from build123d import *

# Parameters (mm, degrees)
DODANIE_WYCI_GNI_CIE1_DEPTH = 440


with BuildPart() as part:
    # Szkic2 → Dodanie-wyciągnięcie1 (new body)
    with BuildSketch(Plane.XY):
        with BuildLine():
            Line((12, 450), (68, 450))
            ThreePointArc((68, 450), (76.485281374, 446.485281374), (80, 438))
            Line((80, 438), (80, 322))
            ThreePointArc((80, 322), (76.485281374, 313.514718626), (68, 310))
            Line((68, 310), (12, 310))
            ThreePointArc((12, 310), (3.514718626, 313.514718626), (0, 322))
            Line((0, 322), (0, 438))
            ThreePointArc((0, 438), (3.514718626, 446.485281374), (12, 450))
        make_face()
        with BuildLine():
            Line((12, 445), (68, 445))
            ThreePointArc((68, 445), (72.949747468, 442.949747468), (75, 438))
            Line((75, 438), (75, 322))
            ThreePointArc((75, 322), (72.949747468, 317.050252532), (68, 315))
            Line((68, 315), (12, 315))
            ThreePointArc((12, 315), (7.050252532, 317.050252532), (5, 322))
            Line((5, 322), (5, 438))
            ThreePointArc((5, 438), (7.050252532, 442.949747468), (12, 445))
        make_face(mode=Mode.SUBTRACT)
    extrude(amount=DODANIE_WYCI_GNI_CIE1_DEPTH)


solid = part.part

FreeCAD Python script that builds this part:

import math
import FreeCAD as App
import Part
import Sketcher
Q = App.Units.Quantity

doc = App.newDocument("Part")
body = doc.addObject("PartDesign::Body", "Body")

# Sketch on XY plane
sketch1 = doc.addObject("Sketcher::SketchObject", "Sketch")
body.addObject(sketch1)
sketch1.AttachmentSupport = (doc.XY_Plane, [""])
sketch1.MapMode = "FlatFace"
sketch1.addGeometry(Part.LineSegment(App.Vector(68, 450, 0), App.Vector(12, 450, 0)), False)
sketch1.addGeometry(Part.ArcOfCircle(Part.Circle(App.Vector(12, 438, 0), App.Vector(0, 0, 1), 12), math.radians(90), math.radians(180)), False)
sketch1.addGeometry(Part.LineSegment(App.Vector(0, 438, 0), App.Vector(0, 322, 0)), False)
sketch1.addGeometry(Part.ArcOfCircle(Part.Circle(App.Vector(12, 322, 0), App.Vector(0, 0, 1), 12), math.radians(-180), math.radians(-90)), False)
sketch1.addGeometry(Part.LineSegment(App.Vector(12, 310, 0), App.Vector(68, 310, 0)), False)
sketch1.addGeometry(Part.ArcOfCircle(Part.Circle(App.Vector(68, 322, 0), App.Vector(0, 0, 1), 12), math.radians(-90), math.radians(0)), False)
sketch1.addGeometry(Part.LineSegment(App.Vector(80, 322, 0), App.Vector(80, 438, 0)), False)
sketch1.addGeometry(Part.ArcOfCircle(Part.Circle(App.Vector(68, 438, 0), App.Vector(0, 0, 1), 12), math.radians(0), math.radians(90)), False)
sketch1.addGeometry(Part.LineSegment(App.Vector(12, 445, 0), App.Vector(68, 445, 0)), False)
sketch1.addGeometry(Part.ArcOfCircle(Part.Circle(App.Vector(68, 438, 0), App.Vector(0, 0, 1), 7), math.radians(0), math.radians(90)), False)
sketch1.addGeometry(Part.LineSegment(App.Vector(75, 438, 0), App.Vector(75, 322, 0)), False)
sketch1.addGeometry(Part.ArcOfCircle(Part.Circle(App.Vector(68, 322, 0), App.Vector(0, 0, 1), 7), math.radians(-90), math.radians(0)), False)
sketch1.addGeometry(Part.LineSegment(App.Vector(68, 315, 0), App.Vector(12, 315, 0)), False)
sketch1.addGeometry(Part.ArcOfCircle(Part.Circle(App.Vector(12, 322, 0), App.Vector(0, 0, 1), 7), math.radians(-180), math.radians(-90)), False)
sketch1.addGeometry(Part.LineSegment(App.Vector(5, 322, 0), App.Vector(5, 438, 0)), False)
sketch1.addGeometry(Part.ArcOfCircle(Part.Circle(App.Vector(12, 438, 0), App.Vector(0, 0, 1), 7), math.radians(90), math.radians(180)), False)
sketch1.addConstraint(Sketcher.Constraint("Tangent", 0, 2, 1, 1))
sketch1.addConstraint(Sketcher.Constraint("Tangent", 1, 2, 2, 1))
sketch1.addConstraint(Sketcher.Constraint("Tangent", 2, 2, 3, 1))
sketch1.addConstraint(Sketcher.Constraint("Tangent", 3, 2, 4, 1))
sketch1.addConstraint(Sketcher.Constraint("Tangent", 4, 2, 5, 1))
sketch1.addConstraint(Sketcher.Constraint("Tangent", 5, 2, 6, 1))
sketch1.addConstraint(Sketcher.Constraint("Tangent", 6, 2, 7, 1))
sketch1.addConstraint(Sketcher.Constraint("Tangent", 7, 2, 0, 1))
sketch1.addConstraint(Sketcher.Constraint("Tangent", 8, 2, 9, 2))
sketch1.addConstraint(Sketcher.Constraint("Tangent", 9, 1, 10, 1))
sketch1.addConstraint(Sketcher.Constraint("Tangent", 10, 2, 11, 2))
sketch1.addConstraint(Sketcher.Constraint("Tangent", 11, 1, 12, 1))
sketch1.addConstraint(Sketcher.Constraint("Tangent", 12, 2, 13, 2))
sketch1.addConstraint(Sketcher.Constraint("Tangent", 13, 1, 14, 1))
sketch1.addConstraint(Sketcher.Constraint("Tangent", 14, 2, 15, 2))
sketch1.addConstraint(Sketcher.Constraint("Tangent", 15, 1, 8, 1))
sketch1.addConstraint(Sketcher.Constraint("Horizontal", 0))
sketch1.addConstraint(Sketcher.Constraint("Vertical", 2))
sketch1.addConstraint(Sketcher.Constraint("Horizontal", 4))
sketch1.addConstraint(Sketcher.Constraint("Vertical", 6))
sketch1.addConstraint(Sketcher.Constraint("Horizontal", 8))
sketch1.addConstraint(Sketcher.Constraint("Vertical", 10))
sketch1.addConstraint(Sketcher.Constraint("Horizontal", 12))
sketch1.addConstraint(Sketcher.Constraint("Vertical", 14))
sketch1.addConstraint(Sketcher.Constraint("Coincident", 9, 3, 7, 3))
sketch1.addConstraint(Sketcher.Constraint("Coincident", 11, 3, 5, 3))
sketch1.addConstraint(Sketcher.Constraint("Coincident", 13, 3, 3, 3))
sketch1.addConstraint(Sketcher.Constraint("Equal", 1, 3))
sketch1.addConstraint(Sketcher.Constraint("Equal", 3, 5))
sketch1.addConstraint(Sketcher.Constraint("Equal", 5, 7))
sketch1.addConstraint(Sketcher.Constraint("Equal", 13, 15))
sketch1.addConstraint(Sketcher.Constraint("PointOnObject", 1, 2, -2))
sketch1.addConstraint(Sketcher.Constraint("Radius", 1, Q("12 mm")))
sketch1.addConstraint(Sketcher.Constraint("Radius", 9, Q("7 mm")))
sketch1.addConstraint(Sketcher.Constraint("DistanceX", 0, 2, 0, 1, Q("56 mm")))
sketch1.addConstraint(Sketcher.Constraint("DistanceY", 2, 2, 2, 1, Q("116 mm")))
sketch1.addConstraint(Sketcher.Constraint("DistanceY", -1, 1, 1, 3, Q("438 mm")))
pad1 = doc.addObject("PartDesign::Pad", "Pad")
body.addObject(pad1)
pad1.Profile = sketch1
pad1.Length = 440

doc.recompute()
